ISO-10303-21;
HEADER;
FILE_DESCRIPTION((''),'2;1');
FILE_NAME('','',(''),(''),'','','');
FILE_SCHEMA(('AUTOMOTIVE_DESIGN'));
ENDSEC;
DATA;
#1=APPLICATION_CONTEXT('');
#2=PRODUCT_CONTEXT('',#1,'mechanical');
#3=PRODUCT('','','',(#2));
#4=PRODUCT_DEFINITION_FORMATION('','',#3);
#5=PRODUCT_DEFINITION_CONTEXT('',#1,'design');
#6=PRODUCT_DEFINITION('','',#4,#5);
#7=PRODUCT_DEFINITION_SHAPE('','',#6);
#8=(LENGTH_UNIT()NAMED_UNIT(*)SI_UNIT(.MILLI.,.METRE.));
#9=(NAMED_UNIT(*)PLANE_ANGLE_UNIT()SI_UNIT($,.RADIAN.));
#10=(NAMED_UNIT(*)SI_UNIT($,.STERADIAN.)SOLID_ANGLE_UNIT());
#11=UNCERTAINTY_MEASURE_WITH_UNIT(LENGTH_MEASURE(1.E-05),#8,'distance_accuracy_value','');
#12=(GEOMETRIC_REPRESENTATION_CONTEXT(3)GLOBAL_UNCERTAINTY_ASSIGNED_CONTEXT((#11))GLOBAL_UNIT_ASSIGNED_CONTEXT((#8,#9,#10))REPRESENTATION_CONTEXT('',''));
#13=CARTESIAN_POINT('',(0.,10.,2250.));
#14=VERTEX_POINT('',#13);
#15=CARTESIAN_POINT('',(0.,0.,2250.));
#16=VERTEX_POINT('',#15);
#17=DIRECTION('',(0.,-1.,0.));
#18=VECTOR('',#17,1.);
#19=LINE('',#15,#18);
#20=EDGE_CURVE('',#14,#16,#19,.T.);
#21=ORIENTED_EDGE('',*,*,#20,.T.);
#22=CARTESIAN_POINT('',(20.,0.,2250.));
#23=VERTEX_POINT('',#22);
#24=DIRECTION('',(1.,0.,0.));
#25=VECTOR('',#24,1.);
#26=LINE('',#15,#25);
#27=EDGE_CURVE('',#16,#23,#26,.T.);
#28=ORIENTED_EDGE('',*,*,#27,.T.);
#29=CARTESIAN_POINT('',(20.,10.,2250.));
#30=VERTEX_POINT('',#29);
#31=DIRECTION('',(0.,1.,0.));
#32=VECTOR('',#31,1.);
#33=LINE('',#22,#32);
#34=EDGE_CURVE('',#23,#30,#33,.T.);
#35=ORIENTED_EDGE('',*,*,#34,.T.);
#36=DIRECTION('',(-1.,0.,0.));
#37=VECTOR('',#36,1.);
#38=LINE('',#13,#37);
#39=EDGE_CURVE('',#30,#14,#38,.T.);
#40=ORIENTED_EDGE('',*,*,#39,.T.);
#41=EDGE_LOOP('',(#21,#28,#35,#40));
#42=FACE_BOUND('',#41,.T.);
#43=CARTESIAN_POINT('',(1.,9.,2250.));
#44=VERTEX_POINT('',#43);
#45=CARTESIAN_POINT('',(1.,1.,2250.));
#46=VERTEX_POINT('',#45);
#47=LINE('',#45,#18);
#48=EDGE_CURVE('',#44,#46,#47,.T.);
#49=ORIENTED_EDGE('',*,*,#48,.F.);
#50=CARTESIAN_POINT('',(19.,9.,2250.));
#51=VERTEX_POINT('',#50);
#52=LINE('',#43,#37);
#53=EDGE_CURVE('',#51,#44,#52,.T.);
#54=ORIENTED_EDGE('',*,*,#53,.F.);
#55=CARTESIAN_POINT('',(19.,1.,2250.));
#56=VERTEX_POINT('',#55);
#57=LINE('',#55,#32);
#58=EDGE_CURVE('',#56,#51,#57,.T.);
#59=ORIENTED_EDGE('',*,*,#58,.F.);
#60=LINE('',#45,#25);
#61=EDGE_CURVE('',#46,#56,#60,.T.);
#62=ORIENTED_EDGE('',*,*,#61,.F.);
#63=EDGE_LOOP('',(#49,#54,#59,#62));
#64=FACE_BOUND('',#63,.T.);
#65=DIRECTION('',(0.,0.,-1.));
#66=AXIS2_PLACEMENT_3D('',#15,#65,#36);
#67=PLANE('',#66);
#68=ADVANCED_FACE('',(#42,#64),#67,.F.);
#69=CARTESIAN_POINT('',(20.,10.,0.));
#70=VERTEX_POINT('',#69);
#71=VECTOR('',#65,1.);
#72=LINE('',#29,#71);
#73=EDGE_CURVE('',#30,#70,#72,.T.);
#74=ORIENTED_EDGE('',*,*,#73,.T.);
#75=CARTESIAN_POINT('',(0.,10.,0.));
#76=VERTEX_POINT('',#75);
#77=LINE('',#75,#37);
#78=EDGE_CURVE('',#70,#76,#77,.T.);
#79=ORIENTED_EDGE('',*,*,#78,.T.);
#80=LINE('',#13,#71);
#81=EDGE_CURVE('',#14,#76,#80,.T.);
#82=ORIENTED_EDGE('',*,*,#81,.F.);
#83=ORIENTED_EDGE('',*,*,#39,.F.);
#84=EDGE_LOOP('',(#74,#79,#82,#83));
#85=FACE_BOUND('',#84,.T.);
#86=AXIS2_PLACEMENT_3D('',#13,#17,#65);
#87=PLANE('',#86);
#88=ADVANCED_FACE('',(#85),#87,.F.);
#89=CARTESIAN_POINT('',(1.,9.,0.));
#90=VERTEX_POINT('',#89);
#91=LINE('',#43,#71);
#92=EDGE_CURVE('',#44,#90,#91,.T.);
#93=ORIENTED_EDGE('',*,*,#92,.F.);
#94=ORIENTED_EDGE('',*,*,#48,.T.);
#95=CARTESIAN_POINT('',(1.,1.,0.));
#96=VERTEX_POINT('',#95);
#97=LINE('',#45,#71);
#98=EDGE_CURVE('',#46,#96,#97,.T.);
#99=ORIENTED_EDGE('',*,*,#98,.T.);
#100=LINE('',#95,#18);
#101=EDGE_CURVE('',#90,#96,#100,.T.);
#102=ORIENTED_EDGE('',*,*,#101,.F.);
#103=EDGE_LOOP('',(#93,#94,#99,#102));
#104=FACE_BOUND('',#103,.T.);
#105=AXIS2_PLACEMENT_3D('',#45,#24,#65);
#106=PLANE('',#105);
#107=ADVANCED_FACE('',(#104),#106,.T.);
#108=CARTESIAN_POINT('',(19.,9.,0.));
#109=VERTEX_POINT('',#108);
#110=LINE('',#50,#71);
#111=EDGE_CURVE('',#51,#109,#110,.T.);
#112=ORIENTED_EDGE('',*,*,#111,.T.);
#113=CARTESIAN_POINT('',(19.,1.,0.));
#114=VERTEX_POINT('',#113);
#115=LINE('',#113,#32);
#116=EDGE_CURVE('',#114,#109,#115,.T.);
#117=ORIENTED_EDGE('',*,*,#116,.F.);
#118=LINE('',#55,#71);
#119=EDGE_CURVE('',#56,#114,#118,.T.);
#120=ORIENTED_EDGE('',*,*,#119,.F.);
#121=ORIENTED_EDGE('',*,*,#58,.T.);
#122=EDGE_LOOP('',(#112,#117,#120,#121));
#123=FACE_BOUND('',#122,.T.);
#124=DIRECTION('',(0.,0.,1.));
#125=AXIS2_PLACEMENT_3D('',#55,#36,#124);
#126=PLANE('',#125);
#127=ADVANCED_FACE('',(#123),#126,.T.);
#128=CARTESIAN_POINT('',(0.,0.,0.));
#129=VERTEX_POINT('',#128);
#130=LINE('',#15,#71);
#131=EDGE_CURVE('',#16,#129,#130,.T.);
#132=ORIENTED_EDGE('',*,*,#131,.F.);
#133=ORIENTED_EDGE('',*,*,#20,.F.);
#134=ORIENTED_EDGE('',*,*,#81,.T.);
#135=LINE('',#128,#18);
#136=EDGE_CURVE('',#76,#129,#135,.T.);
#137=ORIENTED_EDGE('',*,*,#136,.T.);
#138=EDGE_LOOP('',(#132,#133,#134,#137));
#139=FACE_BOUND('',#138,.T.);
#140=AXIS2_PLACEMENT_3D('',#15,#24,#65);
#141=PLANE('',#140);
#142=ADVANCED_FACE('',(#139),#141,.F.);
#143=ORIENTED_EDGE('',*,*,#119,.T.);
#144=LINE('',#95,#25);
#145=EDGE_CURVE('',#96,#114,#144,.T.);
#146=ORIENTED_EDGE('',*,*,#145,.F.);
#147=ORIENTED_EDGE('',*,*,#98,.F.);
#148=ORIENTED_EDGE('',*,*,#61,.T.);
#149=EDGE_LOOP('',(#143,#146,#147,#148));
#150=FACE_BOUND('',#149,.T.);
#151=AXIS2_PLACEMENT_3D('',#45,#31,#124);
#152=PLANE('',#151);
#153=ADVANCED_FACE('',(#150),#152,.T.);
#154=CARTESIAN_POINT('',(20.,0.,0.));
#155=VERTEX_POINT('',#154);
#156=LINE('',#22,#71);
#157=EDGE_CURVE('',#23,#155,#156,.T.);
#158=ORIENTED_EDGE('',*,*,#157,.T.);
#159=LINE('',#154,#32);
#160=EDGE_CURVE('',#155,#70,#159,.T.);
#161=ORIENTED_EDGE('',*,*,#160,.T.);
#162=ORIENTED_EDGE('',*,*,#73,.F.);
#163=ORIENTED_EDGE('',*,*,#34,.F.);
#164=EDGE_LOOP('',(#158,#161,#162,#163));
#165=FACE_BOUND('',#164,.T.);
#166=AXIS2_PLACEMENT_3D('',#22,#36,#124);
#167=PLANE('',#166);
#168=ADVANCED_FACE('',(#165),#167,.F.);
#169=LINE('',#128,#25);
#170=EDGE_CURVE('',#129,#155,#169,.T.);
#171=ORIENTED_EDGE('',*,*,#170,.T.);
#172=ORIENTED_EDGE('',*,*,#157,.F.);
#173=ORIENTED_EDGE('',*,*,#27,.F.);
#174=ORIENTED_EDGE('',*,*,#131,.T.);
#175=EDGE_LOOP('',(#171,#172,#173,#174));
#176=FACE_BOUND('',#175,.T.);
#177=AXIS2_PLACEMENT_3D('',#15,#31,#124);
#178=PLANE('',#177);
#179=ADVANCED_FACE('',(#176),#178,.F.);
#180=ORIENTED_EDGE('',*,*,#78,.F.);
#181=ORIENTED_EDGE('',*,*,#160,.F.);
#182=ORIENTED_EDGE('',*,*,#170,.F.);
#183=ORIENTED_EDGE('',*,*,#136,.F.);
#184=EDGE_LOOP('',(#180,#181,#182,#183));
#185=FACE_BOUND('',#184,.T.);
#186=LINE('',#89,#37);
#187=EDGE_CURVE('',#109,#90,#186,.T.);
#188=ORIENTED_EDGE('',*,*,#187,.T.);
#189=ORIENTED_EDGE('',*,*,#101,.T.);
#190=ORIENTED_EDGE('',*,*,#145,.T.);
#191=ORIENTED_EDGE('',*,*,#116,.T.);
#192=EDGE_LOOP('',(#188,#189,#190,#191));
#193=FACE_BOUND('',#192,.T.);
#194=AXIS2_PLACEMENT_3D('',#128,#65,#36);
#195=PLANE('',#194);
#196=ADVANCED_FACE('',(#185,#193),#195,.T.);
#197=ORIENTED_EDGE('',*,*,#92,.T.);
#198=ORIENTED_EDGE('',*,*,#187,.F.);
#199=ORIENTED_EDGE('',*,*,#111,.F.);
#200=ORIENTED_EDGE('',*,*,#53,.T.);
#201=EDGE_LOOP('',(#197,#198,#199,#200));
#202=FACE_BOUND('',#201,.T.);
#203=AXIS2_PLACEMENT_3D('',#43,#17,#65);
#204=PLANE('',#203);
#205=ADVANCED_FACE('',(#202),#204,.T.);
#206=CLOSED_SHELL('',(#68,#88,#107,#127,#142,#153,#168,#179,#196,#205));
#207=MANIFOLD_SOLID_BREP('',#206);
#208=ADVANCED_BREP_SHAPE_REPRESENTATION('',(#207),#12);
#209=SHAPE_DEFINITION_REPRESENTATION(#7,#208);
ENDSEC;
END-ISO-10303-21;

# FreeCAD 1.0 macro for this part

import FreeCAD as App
import Part
import Sketcher


def add_polygon(sketch, points):
    """Adds a closed chain of lines whose ends are joined by coincident constraints."""
    first, n = sketch.GeometryCount, len(points)
    for a, b in zip(points, points[1:] + points[:1]):
        sketch.addGeometry(Part.LineSegment(App.Vector(*a, 0), App.Vector(*b, 0)), False)
    for i in range(n):
        sketch.addConstraint(Sketcher.Constraint("Coincident", first + i, 2, first + (i + 1) % n, 1))

doc = App.newDocument("Part")
body = doc.addObject("PartDesign::Body", "Body")

sketch1 = doc.addObject("Sketcher::SketchObject", "Sketch")
body.addObject(sketch1)
sketch1.AttachmentSupport = (doc.XY_Plane, [""])
sketch1.MapMode = "FlatFace"
add_polygon(sketch1, [(0, 10), (0, 0), (20, 0), (20, 10)])
add_polygon(sketch1, [(19, 1), (1, 1), (1, 9), (19, 9)])
sketch1.addConstraint([
    Sketcher.Constraint("Vertical", 0),
    Sketcher.Constraint("Horizontal", 1),
    Sketcher.Constraint("Vertical", 2),
    Sketcher.Constraint("Horizontal", 3),
    Sketcher.Constraint("Horizontal", 4),
    Sketcher.Constraint("Vertical", 5),
    Sketcher.Constraint("Horizontal", 6),
    Sketcher.Constraint("Vertical", 7),
    Sketcher.Constraint("Coincident", 0, 2, -1, 1),
    Sketcher.Constraint("DistanceX", 1, 1, 1, 2, 20.0),
    Sketcher.Constraint("DistanceX", 4, 2, 4, 1, 18.0),
    Sketcher.Constraint("DistanceY", 0, 2, 0, 1, 10.0),
    Sketcher.Constraint("DistanceY", 5, 1, 5, 2, 8.0),
    Sketcher.Constraint("DistanceX", -1, 1, 4, 2, 1.0),
    Sketcher.Constraint("DistanceY", -1, 1, 4, 2, 1.0),
])
pad1 = doc.addObject("PartDesign::Pad", "Pad")
body.addObject(pad1)
pad1.Profile = sketch1
pad1.Length = 2250

doc.recompute()
